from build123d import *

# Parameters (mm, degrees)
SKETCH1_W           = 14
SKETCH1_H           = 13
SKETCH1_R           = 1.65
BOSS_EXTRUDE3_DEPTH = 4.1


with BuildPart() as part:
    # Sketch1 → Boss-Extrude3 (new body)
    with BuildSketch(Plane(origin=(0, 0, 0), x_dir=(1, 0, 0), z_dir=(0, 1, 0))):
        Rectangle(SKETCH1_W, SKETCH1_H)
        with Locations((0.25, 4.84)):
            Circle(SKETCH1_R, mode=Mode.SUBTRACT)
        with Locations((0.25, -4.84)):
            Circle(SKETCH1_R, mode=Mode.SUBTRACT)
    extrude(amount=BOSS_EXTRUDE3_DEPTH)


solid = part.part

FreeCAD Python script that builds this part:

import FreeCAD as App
import Part
import Sketcher
from FreeCAD import Vector

doc = App.newDocument("Part")
body = doc.addObject("PartDesign::Body", "Body")

sketch1 = body.newObject("Sketcher::SketchObject", "Sketch")
sketch1.AttachmentSupport = (doc.getObject("XZ_Plane"), [""])
sketch1.MapMode = "FlatFace"
sketch1.addGeometry(Part.LineSegment(Vector(-7, -6.5, 0), Vector(-7, 6.5, 0)), False)
sketch1.addGeometry(Part.LineSegment(Vector(-7, 6.5, 0), Vector(7, 6.5, 0)), False)
sketch1.addGeometry(Part.LineSegment(Vector(7, 6.5, 0), Vector(7, -6.5, 0)), False)
sketch1.addGeometry(Part.LineSegment(Vector(7, -6.5, 0), Vector(-7, -6.5, 0)), False)
sketch1.addGeometry(Part.Circle(Vector(0.2, 4.8, 0), Vector(0, 0, 1), 1.6), False)
sketch1.addGeometry(Part.Circle(Vector(0.2, -4.8, 0), Vector(0, 0, 1), 1.6), False)
sketch1.addConstraint(Sketcher.Constraint("Coincident", 0, 2, 1, 1))
sketch1.addConstraint(Sketcher.Constraint("Coincident", 1, 2, 2, 1))
sketch1.addConstraint(Sketcher.Constraint("Coincident", 2, 2, 3, 1))
sketch1.addConstraint(Sketcher.Constraint("Coincident", 3, 2, 0, 1))
sketch1.addConstraint(Sketcher.Constraint("Vertical", 0))
sketch1.addConstraint(Sketcher.Constraint("Horizontal", 1))
sketch1.addConstraint(Sketcher.Constraint("Vertical", 2))
sketch1.addConstraint(Sketcher.Constraint("Horizontal", 3))
sketch1.addConstraint(Sketcher.Constraint("Equal", 4, 5))
sketch1.addConstraint(Sketcher.Constraint("Symmetric", 0, 2, 2, 2, -1, 1))
sketch1.addConstraint(Sketcher.Constraint("Symmetric", 4, 3, 5, 3, -1))
sketch1.addConstraint(Sketcher.Constraint("Diameter", 4, 3.3))
sketch1.addConstraint(Sketcher.Constraint("DistanceX", 1, 1, 1, 2, 14.0))
sketch1.addConstraint(Sketcher.Constraint("DistanceY", 0, 1, 0, 2, 13.0))
sketch1.addConstraint(Sketcher.Constraint("DistanceX", -1, 1, 4, 3, 0.25))
sketch1.addConstraint(Sketcher.Constraint("DistanceY", -1, 1, 4, 3, 4.84))
pad1 = body.newObject("PartDesign::Pad", "Pad")
pad1.Profile = sketch1
pad1.Length = 4.1
pad1.Reversed = True

doc.recompute()
